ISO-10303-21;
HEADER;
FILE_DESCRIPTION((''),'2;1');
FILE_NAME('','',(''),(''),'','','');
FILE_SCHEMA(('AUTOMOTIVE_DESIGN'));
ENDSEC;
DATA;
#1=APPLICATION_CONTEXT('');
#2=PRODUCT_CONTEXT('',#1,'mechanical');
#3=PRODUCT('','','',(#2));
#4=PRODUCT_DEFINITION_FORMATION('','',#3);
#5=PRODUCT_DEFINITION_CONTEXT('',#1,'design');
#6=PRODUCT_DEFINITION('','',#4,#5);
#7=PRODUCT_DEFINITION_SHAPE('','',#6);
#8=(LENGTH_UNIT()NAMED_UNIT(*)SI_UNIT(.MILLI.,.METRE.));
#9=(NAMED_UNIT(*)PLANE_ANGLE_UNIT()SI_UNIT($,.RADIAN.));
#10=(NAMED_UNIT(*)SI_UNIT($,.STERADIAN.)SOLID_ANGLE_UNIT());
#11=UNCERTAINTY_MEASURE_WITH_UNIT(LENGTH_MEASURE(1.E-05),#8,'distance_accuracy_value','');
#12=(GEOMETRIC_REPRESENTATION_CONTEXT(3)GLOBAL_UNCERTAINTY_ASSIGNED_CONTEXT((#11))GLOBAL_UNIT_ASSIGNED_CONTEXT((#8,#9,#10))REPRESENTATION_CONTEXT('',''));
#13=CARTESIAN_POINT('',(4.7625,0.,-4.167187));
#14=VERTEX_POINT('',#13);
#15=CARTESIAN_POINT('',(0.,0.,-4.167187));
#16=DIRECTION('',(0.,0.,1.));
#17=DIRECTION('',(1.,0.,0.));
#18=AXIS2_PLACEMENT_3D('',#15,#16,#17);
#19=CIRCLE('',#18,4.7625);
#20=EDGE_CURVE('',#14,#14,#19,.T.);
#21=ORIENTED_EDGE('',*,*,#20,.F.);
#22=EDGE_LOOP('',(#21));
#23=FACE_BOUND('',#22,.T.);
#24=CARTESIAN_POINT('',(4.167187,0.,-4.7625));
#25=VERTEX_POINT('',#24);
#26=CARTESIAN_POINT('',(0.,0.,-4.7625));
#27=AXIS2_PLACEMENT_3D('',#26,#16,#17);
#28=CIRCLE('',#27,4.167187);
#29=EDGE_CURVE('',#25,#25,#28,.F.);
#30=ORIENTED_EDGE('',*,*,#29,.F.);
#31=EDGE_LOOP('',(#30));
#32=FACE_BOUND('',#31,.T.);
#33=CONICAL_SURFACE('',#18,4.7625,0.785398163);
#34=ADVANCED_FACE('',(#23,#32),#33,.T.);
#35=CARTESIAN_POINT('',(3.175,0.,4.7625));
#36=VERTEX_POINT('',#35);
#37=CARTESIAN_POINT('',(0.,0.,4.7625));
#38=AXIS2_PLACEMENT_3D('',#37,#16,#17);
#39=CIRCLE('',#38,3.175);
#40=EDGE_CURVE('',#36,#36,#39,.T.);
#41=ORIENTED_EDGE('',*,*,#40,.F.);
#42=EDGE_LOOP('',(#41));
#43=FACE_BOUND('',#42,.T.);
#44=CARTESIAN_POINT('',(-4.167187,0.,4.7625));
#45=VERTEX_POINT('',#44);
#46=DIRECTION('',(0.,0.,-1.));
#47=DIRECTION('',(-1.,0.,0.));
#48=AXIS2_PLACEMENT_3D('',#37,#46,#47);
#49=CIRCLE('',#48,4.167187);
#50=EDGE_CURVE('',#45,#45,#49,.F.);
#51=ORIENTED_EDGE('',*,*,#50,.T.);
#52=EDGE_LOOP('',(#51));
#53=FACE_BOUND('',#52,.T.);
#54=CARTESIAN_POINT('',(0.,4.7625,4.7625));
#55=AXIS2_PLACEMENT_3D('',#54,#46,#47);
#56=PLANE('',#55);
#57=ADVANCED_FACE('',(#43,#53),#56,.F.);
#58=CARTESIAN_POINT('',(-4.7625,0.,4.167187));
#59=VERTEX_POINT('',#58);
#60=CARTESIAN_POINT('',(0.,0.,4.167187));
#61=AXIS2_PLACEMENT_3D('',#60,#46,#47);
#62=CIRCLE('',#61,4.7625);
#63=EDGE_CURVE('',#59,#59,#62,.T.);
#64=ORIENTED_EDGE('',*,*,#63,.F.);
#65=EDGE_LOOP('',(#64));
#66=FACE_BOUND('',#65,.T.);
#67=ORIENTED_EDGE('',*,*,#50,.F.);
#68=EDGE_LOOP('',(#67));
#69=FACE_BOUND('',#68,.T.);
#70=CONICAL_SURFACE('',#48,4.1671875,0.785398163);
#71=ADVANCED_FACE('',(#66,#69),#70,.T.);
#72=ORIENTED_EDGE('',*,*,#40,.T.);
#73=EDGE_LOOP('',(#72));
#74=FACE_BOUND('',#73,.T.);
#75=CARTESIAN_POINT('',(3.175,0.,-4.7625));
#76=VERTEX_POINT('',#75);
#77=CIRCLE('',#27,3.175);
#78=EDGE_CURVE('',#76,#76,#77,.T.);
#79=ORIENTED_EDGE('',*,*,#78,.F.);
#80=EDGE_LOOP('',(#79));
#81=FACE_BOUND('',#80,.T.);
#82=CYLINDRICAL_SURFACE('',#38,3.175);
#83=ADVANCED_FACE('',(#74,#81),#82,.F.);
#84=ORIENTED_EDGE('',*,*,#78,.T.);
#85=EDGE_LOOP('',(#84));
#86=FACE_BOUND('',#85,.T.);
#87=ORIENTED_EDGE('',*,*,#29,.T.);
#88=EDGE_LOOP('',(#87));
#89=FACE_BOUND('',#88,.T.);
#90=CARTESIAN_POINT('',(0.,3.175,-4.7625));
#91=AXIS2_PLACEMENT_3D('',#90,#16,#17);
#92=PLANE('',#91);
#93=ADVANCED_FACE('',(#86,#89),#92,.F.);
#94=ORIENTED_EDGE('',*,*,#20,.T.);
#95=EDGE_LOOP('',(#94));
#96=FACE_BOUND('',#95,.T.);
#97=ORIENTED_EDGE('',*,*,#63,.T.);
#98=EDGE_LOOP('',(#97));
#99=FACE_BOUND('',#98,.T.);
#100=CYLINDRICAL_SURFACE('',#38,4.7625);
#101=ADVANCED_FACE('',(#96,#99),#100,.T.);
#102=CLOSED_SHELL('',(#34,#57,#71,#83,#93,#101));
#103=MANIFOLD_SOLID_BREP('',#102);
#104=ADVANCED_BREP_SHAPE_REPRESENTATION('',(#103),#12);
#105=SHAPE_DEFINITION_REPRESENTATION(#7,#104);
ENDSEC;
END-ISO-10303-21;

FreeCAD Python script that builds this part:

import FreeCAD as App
import Part
import Sketcher

V = App.Vector
Q = App.Units.Quantity


def edges_at(feature, points):
    """Names of the edges that pass closest to the given points."""
    edges = feature.Shape.Edges
    near = lambda p: min(range(len(edges)), key=lambda i: edges[i].distToShape(Part.Vertex(*p))[0])
    return sorted({f"Edge{near(p) + 1}" for p in points})


def add_polygon(sketch, points):
    """Adds a closed chain of lines whose ends are joined by coincident constraints."""
    first, n = sketch.GeometryCount, len(points)
    for a, b in zip(points, points[1:] + points[:1]):
        sketch.addGeometry(Part.LineSegment(App.Vector(*a, 0), App.Vector(*b, 0)), False)
    for i in range(n):
        sketch.addConstraint(Sketcher.Constraint("Coincident", first + i, 2, first + (i + 1) % n, 1))

doc = App.newDocument("Part")
body = doc.addObject("PartDesign::Body", "Body")

sketch1 = doc.addObject("Sketcher::SketchObject", "Sketch")
body.addObject(sketch1)
sketch1.AttachmentSupport = (doc.YZ_Plane, [""])
sketch1.MapMode = "FlatFace"
add_polygon(sketch1, [(4.7625, 4.7625), (3.175, 4.7625), (3.175, -4.7625), (4.7625, -4.7625)])
sketch1.addConstraint(Sketcher.Constraint("Horizontal", 0))
sketch1.addConstraint(Sketcher.Constraint("Vertical", 1))
sketch1.addConstraint(Sketcher.Constraint("Horizontal", 2))
sketch1.addConstraint(Sketcher.Constraint("Vertical", 3))
sketch1.addConstraint(Sketcher.Constraint("DistanceX", 0, 2, 0, 1, Q("0.0625 in")))
sketch1.addConstraint(Sketcher.Constraint("DistanceY", 1, 2, 1, 1, Q("0.375 in")))
sketch1.addConstraint(Sketcher.Constraint("DistanceX", -1, 1, 0, 2, Q("0.125 in")))
sketch1.addConstraint(Sketcher.Constraint("DistanceY", -1, 1, 0, 2, Q("0.1875 in")))
revolution = doc.addObject("PartDesign::Revolution", "Revolution")
body.addObject(revolution)
revolution.Profile = sketch1
revolution.ReferenceAxis = (sketch1, ["V_Axis"])
revolution.Angle = 360
doc.recompute()

chamfer = doc.addObject("PartDesign::Chamfer", "Chamfer")
body.addObject(chamfer)
chamfer.Base = (revolution, edges_at(revolution, [(-4.763, 0, 4.763), (-4.763, 0, -4.763)]))
chamfer.Size = 0.595313

doc.recompute()
